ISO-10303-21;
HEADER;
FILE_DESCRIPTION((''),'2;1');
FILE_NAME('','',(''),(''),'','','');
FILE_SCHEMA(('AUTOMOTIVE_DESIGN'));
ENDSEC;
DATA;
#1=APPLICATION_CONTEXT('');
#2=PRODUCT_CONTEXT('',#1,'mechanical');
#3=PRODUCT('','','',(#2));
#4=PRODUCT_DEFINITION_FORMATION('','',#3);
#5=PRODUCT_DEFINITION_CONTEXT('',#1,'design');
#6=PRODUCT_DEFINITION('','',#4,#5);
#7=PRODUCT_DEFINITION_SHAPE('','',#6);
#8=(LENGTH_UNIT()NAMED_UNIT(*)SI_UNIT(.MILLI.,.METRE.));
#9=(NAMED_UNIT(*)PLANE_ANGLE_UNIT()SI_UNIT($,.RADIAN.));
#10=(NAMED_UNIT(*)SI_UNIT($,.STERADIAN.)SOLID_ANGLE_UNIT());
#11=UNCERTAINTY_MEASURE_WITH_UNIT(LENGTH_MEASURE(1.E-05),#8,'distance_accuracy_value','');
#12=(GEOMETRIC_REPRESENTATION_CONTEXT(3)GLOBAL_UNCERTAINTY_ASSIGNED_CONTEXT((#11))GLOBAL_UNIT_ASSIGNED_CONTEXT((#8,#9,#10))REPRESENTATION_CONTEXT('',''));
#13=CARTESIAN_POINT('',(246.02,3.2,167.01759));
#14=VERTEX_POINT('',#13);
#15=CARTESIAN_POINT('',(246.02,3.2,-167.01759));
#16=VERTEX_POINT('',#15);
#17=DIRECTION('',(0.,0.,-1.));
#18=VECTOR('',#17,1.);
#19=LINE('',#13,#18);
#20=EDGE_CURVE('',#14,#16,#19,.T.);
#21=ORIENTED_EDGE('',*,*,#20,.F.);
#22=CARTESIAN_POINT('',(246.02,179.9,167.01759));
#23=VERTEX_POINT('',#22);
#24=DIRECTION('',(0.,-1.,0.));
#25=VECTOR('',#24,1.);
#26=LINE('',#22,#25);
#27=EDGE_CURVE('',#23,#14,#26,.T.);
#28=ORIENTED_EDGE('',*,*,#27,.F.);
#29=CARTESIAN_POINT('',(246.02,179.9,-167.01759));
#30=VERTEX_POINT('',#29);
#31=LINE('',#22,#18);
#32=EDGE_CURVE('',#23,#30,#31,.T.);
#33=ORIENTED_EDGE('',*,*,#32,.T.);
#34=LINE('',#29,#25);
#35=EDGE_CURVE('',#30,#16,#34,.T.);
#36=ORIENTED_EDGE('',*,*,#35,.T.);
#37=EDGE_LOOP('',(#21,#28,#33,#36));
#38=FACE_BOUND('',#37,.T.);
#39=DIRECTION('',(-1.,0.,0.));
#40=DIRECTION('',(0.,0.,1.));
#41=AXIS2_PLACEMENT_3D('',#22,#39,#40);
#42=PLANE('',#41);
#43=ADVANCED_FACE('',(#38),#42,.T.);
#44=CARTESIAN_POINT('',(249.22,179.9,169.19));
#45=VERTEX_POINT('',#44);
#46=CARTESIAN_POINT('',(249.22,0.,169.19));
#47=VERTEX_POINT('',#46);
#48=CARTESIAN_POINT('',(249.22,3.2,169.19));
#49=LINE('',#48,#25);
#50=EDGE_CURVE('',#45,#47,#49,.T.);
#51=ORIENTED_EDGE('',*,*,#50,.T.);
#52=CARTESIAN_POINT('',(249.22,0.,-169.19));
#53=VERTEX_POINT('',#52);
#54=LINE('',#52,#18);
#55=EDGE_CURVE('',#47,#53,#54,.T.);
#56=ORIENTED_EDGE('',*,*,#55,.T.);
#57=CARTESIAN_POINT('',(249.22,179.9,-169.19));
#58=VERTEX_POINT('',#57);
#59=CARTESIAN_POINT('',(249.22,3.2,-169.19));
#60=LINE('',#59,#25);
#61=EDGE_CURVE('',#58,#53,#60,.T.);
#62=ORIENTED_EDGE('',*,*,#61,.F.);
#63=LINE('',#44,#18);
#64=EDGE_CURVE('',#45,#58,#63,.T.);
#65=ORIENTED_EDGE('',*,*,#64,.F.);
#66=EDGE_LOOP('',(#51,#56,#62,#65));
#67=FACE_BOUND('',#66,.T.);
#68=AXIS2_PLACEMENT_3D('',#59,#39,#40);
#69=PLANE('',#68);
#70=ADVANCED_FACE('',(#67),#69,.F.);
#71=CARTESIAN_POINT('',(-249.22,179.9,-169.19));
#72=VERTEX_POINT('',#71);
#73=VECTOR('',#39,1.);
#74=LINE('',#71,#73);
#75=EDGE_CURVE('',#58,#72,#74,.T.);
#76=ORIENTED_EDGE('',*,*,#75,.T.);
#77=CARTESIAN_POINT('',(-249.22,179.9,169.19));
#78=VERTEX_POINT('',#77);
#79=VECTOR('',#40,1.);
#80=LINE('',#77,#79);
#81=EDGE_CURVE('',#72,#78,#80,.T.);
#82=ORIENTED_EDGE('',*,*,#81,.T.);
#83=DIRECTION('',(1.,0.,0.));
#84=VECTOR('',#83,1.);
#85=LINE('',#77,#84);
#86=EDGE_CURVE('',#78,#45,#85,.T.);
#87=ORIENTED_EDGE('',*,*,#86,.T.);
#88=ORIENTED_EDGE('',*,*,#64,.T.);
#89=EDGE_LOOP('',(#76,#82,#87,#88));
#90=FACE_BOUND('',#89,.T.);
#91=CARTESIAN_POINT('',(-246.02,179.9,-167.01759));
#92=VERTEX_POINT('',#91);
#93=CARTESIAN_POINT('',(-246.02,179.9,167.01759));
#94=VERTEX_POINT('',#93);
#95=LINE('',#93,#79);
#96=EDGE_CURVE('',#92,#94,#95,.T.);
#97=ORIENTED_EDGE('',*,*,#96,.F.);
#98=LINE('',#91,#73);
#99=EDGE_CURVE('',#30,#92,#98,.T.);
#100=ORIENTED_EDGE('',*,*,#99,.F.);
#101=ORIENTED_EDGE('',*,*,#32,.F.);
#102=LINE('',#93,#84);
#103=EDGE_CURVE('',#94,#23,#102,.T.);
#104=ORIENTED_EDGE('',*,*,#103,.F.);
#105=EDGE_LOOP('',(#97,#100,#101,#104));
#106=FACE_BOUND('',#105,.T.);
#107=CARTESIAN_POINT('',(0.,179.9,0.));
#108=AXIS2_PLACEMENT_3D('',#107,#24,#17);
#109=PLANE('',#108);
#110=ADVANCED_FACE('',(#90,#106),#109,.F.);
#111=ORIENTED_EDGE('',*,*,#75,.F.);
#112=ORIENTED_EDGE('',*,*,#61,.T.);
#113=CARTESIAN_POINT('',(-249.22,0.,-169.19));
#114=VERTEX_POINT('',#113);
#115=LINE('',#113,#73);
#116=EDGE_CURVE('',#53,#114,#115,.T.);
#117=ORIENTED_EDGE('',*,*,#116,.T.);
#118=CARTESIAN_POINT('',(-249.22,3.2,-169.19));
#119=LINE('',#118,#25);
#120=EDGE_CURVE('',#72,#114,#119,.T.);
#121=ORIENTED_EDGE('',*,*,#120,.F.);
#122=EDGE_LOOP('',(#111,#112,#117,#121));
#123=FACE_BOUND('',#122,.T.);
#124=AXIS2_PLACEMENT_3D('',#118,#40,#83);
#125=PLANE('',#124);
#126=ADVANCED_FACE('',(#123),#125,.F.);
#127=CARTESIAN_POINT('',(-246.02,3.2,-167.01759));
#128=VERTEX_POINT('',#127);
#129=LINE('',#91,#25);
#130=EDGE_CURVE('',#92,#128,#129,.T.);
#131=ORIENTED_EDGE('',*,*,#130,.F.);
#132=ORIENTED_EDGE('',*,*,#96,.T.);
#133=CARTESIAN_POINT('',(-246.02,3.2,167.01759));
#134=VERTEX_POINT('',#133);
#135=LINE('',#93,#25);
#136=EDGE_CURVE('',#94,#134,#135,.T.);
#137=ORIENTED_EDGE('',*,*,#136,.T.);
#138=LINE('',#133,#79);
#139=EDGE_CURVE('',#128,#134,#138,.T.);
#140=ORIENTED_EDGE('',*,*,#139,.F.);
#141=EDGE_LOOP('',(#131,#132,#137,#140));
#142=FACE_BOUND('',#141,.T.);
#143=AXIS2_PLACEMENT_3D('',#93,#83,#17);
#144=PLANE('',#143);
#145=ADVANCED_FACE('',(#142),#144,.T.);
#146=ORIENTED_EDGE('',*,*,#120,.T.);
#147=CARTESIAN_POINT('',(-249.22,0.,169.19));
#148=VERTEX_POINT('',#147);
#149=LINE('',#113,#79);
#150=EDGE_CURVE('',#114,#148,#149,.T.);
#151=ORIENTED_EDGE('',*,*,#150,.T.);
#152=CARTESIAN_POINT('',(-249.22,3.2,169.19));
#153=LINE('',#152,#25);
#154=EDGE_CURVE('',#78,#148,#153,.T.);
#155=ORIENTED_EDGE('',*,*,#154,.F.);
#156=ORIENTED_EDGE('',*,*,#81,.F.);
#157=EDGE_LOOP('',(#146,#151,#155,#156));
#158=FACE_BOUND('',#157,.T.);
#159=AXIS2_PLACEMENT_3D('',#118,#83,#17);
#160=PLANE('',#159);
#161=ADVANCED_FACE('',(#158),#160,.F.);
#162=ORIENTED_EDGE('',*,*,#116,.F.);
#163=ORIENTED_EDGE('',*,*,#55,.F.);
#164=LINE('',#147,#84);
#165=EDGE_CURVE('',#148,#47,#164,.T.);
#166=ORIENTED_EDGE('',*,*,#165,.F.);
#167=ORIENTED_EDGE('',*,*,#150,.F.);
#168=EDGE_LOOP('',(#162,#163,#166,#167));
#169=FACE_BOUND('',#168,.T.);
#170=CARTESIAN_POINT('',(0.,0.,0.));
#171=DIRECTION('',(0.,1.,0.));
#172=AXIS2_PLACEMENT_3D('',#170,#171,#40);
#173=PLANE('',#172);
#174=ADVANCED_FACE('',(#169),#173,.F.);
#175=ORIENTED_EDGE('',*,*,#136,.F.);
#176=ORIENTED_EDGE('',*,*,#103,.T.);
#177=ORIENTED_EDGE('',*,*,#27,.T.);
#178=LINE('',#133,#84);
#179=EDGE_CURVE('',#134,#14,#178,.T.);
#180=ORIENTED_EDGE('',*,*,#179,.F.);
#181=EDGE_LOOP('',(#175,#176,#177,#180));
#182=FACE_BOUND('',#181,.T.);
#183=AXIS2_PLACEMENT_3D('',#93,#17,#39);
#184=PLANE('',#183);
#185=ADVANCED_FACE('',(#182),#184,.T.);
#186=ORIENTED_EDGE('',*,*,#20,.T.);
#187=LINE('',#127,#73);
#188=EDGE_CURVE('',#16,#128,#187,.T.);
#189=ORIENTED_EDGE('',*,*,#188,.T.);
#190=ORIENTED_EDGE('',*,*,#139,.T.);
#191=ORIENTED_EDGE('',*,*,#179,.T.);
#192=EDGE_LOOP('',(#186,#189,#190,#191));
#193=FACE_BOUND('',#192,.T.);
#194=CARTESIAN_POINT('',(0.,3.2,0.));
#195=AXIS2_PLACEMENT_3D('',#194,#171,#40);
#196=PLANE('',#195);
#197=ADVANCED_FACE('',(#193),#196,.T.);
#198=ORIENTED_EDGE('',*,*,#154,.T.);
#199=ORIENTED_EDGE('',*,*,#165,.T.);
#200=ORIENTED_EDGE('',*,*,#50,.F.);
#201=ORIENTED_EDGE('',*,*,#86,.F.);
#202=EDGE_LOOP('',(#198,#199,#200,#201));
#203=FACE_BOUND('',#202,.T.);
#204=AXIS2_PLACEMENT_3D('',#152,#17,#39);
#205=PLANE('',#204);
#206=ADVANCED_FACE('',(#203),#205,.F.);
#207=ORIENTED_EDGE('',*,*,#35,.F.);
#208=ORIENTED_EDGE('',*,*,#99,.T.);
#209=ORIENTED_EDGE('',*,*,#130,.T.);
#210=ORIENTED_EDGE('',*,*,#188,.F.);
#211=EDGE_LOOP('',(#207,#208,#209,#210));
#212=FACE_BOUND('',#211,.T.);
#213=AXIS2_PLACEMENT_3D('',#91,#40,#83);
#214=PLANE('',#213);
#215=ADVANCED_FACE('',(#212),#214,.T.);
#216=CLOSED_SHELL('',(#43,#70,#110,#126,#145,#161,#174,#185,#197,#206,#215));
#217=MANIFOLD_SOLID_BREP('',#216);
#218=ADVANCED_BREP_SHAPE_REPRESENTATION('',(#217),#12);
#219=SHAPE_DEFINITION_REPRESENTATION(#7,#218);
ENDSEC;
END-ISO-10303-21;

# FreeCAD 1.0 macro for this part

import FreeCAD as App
import Part
import Sketcher

V = App.Vector


def add_polygon(sketch, points):
    """Adds a closed chain of lines whose ends are joined by coincident constraints."""
    first, n = sketch.GeometryCount, len(points)
    for a, b in zip(points, points[1:] + points[:1]):
        sketch.addGeometry(Part.LineSegment(App.Vector(*a, 0), App.Vector(*b, 0)), False)
    for i in range(n):
        sketch.addConstraint(Sketcher.Constraint("Coincident", first + i, 2, first + (i + 1) % n, 1))

doc = App.newDocument("Part")
body = doc.addObject("PartDesign::Body", "Body")

# Sketch on XZ plane
sketch1 = doc.addObject("Sketcher::SketchObject", "Sketch")
body.addObject(sketch1)
sketch1.AttachmentSupport = (doc.XZ_Plane, [""])
sketch1.MapMode = "FlatFace"
add_polygon(sketch1, [(-249, -169), (-249, 169), (249, 169), (249, -169)])  # lines 0-3
sketch1.addConstraint([
    Sketcher.Constraint("Vertical", 0),
    Sketcher.Constraint("Horizontal", 1),
    Sketcher.Constraint("Vertical", 2),
    Sketcher.Constraint("Horizontal", 3),
    Sketcher.Constraint("Symmetric", 0, 2, 2, 2, -1, 1),
    Sketcher.Constraint("DistanceX", 1, 1, 1, 2, 498.44),
    Sketcher.Constraint("DistanceY", 0, 1, 0, 2, 338.38),
])
pad1 = doc.addObject("PartDesign::Pad", "Pad")
body.addObject(pad1)
pad1.Profile = sketch1
pad1.Length = 3.2
pad1.Reversed = True

# Sketch on XZ plane
sketch2 = doc.addObject("Sketcher::SketchObject", "Sketch001")
body.addObject(sketch2)
sketch2.AttachmentSupport = (doc.XZ_Plane, [""])
sketch2.MapMode = "FlatFace"
sketch2.AttachmentOffset = App.Placement(V(0, 0, -3.2), App.Rotation())
add_polygon(sketch2, [(-249, -169), (-249, 169), (249, 169), (249, -169)])  # lines 0-3
add_polygon(sketch2, [(246, 167), (-246, 167), (-246, -167), (246, -167)])  # lines 4-7
sketch2.addConstraint([
    Sketcher.Constraint("Vertical", 0),
    Sketcher.Constraint("Horizontal", 1),
    Sketcher.Constraint("Vertical", 2),
    Sketcher.Constraint("Horizontal", 3),
    Sketcher.Constraint("Horizontal", 4),
    Sketcher.Constraint("Vertical", 5),
    Sketcher.Constraint("Horizontal", 6),
    Sketcher.Constraint("Vertical", 7),
    Sketcher.Constraint("Symmetric", 0, 2, 2, 2, -1, 1),
    Sketcher.Constraint("Symmetric", 4, 2, 6, 2, -1, 1),
    Sketcher.Constraint("DistanceX", 1, 1, 1, 2, 498.44),
    Sketcher.Constraint("DistanceX", 4, 2, 4, 1, 492.04),
    Sketcher.Constraint("DistanceY", 0, 1, 0, 2, 338.38),
    Sketcher.Constraint("DistanceY", 5, 2, 5, 1, 334.03518),
])
pad2 = doc.addObject("PartDesign::Pad", "Pad001")
body.addObject(pad2)
pad2.Profile = sketch2
pad2.Length = 176.7
pad2.Reversed = True

doc.recompute()
